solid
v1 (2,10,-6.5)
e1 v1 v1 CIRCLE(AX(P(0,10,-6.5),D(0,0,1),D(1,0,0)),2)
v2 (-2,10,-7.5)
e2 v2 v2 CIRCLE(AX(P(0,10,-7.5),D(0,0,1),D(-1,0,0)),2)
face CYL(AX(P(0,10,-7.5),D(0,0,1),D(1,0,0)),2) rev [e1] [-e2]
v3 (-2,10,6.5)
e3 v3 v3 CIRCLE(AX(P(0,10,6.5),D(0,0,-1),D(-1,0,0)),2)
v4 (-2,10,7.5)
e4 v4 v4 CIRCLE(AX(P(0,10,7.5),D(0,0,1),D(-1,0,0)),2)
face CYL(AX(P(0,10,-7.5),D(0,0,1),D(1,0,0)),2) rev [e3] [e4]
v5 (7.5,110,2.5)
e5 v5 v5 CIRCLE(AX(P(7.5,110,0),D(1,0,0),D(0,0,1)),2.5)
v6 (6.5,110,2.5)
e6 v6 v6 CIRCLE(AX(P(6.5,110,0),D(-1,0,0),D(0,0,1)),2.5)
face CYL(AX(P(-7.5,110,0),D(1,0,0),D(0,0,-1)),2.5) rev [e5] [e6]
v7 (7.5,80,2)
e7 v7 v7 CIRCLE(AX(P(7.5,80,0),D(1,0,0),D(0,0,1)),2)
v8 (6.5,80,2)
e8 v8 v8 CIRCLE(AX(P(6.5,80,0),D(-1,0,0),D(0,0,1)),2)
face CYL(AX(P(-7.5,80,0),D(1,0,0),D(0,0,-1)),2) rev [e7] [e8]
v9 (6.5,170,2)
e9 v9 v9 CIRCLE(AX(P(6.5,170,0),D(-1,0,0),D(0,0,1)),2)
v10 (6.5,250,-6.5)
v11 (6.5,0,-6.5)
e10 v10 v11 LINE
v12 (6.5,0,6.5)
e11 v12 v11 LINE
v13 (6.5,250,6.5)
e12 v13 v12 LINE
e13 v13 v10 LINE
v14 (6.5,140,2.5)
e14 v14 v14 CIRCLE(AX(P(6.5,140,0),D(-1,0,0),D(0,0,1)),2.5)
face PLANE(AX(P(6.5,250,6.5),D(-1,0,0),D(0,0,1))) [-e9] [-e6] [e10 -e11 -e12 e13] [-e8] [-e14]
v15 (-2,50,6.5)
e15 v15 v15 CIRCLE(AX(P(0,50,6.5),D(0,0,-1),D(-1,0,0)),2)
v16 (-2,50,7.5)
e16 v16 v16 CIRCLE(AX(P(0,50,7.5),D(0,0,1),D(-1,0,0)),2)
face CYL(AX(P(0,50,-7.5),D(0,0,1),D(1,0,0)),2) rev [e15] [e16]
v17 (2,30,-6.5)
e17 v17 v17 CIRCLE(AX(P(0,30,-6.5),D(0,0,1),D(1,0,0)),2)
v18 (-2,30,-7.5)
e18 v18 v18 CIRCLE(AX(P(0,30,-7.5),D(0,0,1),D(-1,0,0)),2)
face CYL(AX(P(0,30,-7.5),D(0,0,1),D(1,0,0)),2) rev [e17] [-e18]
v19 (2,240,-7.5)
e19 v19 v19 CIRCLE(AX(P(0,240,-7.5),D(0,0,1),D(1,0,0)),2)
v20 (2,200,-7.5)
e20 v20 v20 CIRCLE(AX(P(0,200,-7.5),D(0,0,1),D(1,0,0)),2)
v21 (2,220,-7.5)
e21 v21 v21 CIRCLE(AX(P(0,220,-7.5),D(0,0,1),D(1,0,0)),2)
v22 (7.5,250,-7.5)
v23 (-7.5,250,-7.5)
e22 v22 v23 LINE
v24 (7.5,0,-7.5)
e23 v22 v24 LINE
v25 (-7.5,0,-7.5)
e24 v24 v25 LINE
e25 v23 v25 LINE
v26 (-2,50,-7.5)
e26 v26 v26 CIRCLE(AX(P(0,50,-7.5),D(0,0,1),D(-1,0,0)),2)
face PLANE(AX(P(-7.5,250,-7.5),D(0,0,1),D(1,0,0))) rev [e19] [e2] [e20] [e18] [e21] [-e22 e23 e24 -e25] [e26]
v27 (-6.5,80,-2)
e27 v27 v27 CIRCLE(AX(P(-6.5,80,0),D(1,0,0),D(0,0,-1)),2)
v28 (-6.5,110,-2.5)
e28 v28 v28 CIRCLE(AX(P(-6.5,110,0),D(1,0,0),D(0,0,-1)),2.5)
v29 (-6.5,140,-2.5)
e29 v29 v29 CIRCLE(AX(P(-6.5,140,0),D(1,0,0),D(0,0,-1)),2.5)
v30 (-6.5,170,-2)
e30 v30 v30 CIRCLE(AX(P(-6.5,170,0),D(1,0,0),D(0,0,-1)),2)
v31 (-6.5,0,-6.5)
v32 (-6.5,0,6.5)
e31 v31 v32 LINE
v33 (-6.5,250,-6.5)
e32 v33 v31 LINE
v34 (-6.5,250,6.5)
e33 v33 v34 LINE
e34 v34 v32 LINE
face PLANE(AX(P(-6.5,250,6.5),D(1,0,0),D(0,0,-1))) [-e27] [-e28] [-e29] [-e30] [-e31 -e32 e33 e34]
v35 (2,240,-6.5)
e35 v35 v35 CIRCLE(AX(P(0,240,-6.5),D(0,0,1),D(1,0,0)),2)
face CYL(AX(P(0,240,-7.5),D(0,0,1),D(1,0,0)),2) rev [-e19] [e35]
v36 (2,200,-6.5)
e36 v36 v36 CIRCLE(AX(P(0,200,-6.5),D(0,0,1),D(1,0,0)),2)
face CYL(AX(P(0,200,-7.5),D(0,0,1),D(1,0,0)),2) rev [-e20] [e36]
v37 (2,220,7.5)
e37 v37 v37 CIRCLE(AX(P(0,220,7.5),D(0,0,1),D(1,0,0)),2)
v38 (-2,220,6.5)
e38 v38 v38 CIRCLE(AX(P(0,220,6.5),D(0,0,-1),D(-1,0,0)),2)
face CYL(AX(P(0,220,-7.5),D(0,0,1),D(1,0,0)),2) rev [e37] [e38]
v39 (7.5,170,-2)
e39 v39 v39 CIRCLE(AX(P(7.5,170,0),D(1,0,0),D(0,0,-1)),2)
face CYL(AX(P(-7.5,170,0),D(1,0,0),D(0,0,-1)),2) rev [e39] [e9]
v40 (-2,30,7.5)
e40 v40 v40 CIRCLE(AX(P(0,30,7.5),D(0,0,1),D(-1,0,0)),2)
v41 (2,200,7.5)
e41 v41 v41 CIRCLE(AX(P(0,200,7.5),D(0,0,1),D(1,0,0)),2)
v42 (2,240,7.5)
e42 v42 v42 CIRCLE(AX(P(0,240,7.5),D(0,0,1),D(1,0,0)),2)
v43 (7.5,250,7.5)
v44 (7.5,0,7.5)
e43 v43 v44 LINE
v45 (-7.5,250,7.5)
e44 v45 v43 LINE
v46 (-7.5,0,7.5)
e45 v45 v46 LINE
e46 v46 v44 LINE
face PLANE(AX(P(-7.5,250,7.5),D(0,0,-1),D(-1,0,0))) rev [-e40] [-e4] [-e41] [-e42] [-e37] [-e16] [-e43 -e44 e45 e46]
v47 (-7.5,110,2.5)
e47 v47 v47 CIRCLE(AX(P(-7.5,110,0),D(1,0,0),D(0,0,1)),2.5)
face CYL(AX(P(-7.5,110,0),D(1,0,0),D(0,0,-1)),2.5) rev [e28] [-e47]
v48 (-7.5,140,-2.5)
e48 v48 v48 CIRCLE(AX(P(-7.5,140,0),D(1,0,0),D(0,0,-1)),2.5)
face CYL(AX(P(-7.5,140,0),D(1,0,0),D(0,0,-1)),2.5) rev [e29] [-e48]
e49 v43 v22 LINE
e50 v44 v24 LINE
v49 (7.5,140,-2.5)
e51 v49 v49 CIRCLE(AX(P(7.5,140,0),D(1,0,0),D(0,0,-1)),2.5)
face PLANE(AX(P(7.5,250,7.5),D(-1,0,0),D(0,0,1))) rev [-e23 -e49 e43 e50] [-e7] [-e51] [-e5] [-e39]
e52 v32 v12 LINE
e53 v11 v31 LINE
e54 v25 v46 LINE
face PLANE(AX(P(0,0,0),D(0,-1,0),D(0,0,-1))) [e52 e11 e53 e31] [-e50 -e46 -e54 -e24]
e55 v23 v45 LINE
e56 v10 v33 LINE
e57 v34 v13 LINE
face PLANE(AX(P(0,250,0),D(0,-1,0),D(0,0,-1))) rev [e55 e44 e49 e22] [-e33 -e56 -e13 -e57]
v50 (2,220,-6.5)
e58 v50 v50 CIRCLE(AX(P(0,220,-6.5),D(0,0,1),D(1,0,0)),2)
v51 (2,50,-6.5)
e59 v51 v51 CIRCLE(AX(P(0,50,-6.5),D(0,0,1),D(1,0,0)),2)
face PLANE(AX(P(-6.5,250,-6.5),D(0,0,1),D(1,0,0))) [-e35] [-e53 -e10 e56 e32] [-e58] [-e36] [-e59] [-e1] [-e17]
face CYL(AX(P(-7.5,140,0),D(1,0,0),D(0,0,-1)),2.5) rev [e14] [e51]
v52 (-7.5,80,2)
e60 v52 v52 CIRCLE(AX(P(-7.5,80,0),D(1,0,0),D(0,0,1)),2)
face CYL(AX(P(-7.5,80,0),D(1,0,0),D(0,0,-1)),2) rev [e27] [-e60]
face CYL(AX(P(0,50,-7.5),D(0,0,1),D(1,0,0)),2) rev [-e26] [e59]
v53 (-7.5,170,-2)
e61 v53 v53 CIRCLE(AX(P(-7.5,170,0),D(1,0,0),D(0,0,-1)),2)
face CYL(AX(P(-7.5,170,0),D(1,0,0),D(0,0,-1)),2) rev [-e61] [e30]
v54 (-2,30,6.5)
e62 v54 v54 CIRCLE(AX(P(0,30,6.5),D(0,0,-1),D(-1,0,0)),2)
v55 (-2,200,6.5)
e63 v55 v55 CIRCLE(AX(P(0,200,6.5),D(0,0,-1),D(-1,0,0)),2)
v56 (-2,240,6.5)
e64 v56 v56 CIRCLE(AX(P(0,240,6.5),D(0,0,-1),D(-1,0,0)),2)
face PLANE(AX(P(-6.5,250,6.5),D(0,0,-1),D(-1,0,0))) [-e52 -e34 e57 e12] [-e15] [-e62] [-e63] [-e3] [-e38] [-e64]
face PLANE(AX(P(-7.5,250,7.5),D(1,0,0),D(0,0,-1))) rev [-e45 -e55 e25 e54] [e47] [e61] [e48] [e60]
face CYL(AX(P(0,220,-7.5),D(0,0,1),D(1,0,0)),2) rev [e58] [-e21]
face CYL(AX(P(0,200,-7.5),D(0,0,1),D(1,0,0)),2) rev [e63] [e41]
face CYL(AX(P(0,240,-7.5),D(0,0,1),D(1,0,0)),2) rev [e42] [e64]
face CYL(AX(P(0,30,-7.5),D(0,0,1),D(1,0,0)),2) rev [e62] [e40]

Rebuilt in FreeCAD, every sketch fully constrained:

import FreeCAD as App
import Part
import Sketcher
from FreeCAD import Vector

doc = App.newDocument("Part")
body = doc.addObject("PartDesign::Body", "Body")

# Sketch on XZ plane
sketch1 = body.newObject("Sketcher::SketchObject", "Sketch")
sketch1.AttachmentSupport = (doc.getObject("XZ_Plane"), [""])
sketch1.MapMode = "FlatFace"
sketch1.addGeometry([
    Part.LineSegment(Vector(-8, -8, 0), Vector(-8, 8, 0)),  # 0
    Part.LineSegment(Vector(-8, 8, 0), Vector(8, 8, 0)),  # 1
    Part.LineSegment(Vector(8, 8, 0), Vector(8, -8, 0)),  # 2
    Part.LineSegment(Vector(8, -8, 0), Vector(-8, -8, 0)),  # 3
    Part.LineSegment(Vector(6, 6, 0), Vector(-6, 6, 0)),  # 4
    Part.LineSegment(Vector(-6, 6, 0), Vector(-6, -6, 0)),  # 5
    Part.LineSegment(Vector(-6, -6, 0), Vector(6, -6, 0)),  # 6
    Part.LineSegment(Vector(6, -6, 0), Vector(6, 6, 0)),  # 7
], False)
sketch1.addConstraint([
    Sketcher.Constraint("Coincident", 0, 2, 1, 1),
    Sketcher.Constraint("Coincident", 1, 2, 2, 1),
    Sketcher.Constraint("Coincident", 2, 2, 3, 1),
    Sketcher.Constraint("Coincident", 3, 2, 0, 1),
    Sketcher.Constraint("Coincident", 4, 2, 5, 1),
    Sketcher.Constraint("Coincident", 5, 2, 6, 1),
    Sketcher.Constraint("Coincident", 6, 2, 7, 1),
    Sketcher.Constraint("Coincident", 7, 2, 4, 1),
    Sketcher.Constraint("Vertical", 0),
    Sketcher.Constraint("Horizontal", 1),
    Sketcher.Constraint("Vertical", 2),
    Sketcher.Constraint("Horizontal", 3),
    Sketcher.Constraint("Horizontal", 4),
    Sketcher.Constraint("Vertical", 5),
    Sketcher.Constraint("Horizontal", 6),
    Sketcher.Constraint("Vertical", 7),
    Sketcher.Constraint("Symmetric", 0, 2, 2, 2, -1, 1),
    Sketcher.Constraint("Symmetric", 4, 2, 6, 2, -1, 1),
    Sketcher.Constraint("Equal", 3, 0),
    Sketcher.Constraint("Equal", 6, 5),
    Sketcher.Constraint("DistanceX", 1, 1, 1, 2, 15.0),
    Sketcher.Constraint("DistanceX", 4, 2, 4, 1, 13.0),
])
pad1 = body.newObject("PartDesign::Pad", "Pad")
pad1.Profile = sketch1
pad1.Length = 250
pad1.Reversed = True

# Sketch on XY plane
sketch2 = body.newObject("Sketcher::SketchObject", "Sketch001")
sketch2.AttachmentSupport = (doc.getObject("XY_Plane"), [""])
sketch2.MapMode = "FlatFace"
sketch2.AttachmentOffset = App.Placement(Vector(0, 0, 7.5), App.Rotation())
sketch2.addGeometry([
    Part.Circle(Vector(0, 240, 0), Vector(0, 0, 1), 2),  # 0
    Part.Circle(Vector(0, 220, 0), Vector(0, 0, 1), 2),  # 1
    Part.Circle(Vector(0, 30, 0), Vector(0, 0, 1), 2),  # 2
    Part.Circle(Vector(0, 10, 0), Vector(0, 0, 1), 2),  # 3
    Part.Circle(Vector(0, 200, 0), Vector(0, 0, 1), 2),  # 4
    Part.Circle(Vector(0, 50, 0), Vector(0, 0, 1), 2),  # 5
], False)
sketch2.addConstraint([
    Sketcher.Constraint("Equal", 0, 1),
    Sketcher.Constraint("Equal", 1, 2),
    Sketcher.Constraint("Equal", 2, 3),
    Sketcher.Constraint("Equal", 3, 4),
    Sketcher.Constraint("Equal", 4, 5),
    Sketcher.Constraint("PointOnObject", 0, 3, -2),
    Sketcher.Constraint("PointOnObject", 1, 3, -2),
    Sketcher.Constraint("PointOnObject", 2, 3, -2),
    Sketcher.Constraint("PointOnObject", 3, 3, -2),
    Sketcher.Constraint("PointOnObject", 4, 3, -2),
    Sketcher.Constraint("PointOnObject", 5, 3, -2),
    Sketcher.Constraint("Diameter", 0, 4.0),
    Sketcher.Constraint("DistanceY", -1, 1, 0, 3, 240.0),
    Sketcher.Constraint("DistanceY", -1, 1, 1, 3, 220.0),
    Sketcher.Constraint("DistanceY", -1, 1, 2, 3, 30.0),
    Sketcher.Constraint("DistanceY", -1, 1, 3, 3, 10.0),
    Sketcher.Constraint("DistanceY", -1, 1, 4, 3, 200.0),
    Sketcher.Constraint("DistanceY", -1, 1, 5, 3, 50.0),
])
pocket1 = body.newObject("PartDesign::Pocket", "Pocket")
pocket1.Profile = sketch2
pocket1.Type = "ThroughAll"

# Sketch on YZ plane
sketch3 = body.newObject("Sketcher::SketchObject", "Sketch002")
sketch3.AttachmentSupport = (doc.getObject("YZ_Plane"), [""])
sketch3.MapMode = "FlatFace"
sketch3.AttachmentOffset = App.Placement(Vector(0, 0, 7.5), App.Rotation())
sketch3.addGeometry([
    Part.Circle(Vector(140, 0, 0), Vector(0, 0, 1), 2.5),
    Part.Circle(Vector(110, 0, 0), Vector(0, 0, 1), 2.5),
    Part.Circle(Vector(170, 0, 0), Vector(0, 0, 1), 2),
    Part.Circle(Vector(80, 0, 0), Vector(0, 0, 1), 2),
], False)
sketch3.addConstraint([
    Sketcher.Constraint("Equal", 0, 1),
    Sketcher.Constraint("Equal", 2, 3),
    Sketcher.Constraint("PointOnObject", 0, 3, -1),
    Sketcher.Constraint("PointOnObject", 1, 3, -1),
    Sketcher.Constraint("PointOnObject", 2, 3, -1),
    Sketcher.Constraint("PointOnObject", 3, 3, -1),
    Sketcher.Constraint("Diameter", 0, 5.0),
    Sketcher.Constraint("Diameter", 2, 4.0),
    Sketcher.Constraint("DistanceX", -1, 1, 0, 3, 140.0),
    Sketcher.Constraint("DistanceX", -1, 1, 1, 3, 110.0),
    Sketcher.Constraint("DistanceX", -1, 1, 2, 3, 170.0),
    Sketcher.Constraint("DistanceX", -1, 1, 3, 3, 80.0),
])
pocket2 = body.newObject("PartDesign::Pocket", "Pocket001")
pocket2.Profile = sketch3
pocket2.Type = "ThroughAll"

doc.recompute()
